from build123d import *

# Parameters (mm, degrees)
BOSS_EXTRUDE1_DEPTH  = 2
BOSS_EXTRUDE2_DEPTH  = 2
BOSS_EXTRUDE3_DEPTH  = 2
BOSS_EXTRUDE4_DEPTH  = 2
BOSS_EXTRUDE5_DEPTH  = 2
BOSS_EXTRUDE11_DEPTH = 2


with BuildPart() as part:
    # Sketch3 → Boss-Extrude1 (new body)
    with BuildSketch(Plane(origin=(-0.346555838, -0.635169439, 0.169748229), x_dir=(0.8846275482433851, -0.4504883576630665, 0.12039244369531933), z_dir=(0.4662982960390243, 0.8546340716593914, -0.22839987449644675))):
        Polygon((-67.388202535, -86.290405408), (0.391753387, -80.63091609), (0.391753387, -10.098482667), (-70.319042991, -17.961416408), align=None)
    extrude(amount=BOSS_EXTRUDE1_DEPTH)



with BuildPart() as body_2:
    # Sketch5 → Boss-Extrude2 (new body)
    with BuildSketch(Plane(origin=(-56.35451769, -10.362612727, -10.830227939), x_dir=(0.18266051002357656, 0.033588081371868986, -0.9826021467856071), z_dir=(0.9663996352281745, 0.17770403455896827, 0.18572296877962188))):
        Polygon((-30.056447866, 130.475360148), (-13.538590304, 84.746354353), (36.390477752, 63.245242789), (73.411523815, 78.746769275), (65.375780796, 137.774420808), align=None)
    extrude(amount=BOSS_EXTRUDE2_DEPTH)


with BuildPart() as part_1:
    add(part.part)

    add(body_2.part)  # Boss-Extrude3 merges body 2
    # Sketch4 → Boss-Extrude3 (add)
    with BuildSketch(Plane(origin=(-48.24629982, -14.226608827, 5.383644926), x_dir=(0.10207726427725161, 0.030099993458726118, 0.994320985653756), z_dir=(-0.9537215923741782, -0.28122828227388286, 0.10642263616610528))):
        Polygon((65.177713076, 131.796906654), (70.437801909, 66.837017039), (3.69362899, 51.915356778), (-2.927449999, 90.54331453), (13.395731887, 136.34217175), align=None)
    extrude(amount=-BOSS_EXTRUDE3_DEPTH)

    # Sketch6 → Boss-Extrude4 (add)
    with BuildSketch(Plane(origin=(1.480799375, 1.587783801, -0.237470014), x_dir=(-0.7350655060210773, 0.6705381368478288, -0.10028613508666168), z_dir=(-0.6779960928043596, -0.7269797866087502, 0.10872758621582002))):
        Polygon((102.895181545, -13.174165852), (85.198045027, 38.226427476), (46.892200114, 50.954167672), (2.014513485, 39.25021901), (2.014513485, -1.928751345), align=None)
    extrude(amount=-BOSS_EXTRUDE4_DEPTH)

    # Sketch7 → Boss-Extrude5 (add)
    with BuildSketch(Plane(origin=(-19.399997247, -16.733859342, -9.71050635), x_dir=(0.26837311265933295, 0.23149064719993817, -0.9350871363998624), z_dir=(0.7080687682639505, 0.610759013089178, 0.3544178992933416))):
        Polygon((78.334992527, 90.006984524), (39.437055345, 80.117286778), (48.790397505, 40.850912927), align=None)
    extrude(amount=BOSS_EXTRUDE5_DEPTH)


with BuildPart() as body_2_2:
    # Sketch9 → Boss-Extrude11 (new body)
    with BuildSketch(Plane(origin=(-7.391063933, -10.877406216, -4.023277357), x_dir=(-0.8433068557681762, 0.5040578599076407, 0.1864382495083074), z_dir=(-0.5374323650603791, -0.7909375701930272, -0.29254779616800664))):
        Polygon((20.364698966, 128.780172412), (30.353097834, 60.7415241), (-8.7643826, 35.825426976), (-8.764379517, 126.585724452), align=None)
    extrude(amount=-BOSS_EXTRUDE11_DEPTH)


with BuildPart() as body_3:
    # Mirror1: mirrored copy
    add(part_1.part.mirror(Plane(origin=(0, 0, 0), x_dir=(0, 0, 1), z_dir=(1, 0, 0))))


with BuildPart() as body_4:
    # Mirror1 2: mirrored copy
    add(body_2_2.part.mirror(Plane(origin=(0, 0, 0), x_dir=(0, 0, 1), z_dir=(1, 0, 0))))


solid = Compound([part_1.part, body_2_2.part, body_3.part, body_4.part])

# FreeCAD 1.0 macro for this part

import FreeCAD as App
import Part
import Sketcher
Q = App.Units.Quantity

doc = App.newDocument("Part")
body = doc.addObject("PartDesign::Body", "Body")

sketch1 = body.newObject("Sketcher::SketchObject", "Sketch")
sketch1.Placement = App.Placement(App.Vector(-0.346556, -0.635169, 0.169748), App.Rotation(App.Vector(0.884627548, -0.450488358, 0.120392444), App.Vector(0, -0.258187612, -0.966094797), App.Vector(0.466298296, 0.854634072, -0.228399874), "ZXY"))
sketch1.addGeometry(Part.LineSegment(App.Vector(-67, -86, 0), App.Vector(0, -81, 0)), False)
sketch1.addGeometry(Part.LineSegment(App.Vector(0, -81, 0), App.Vector(0, -10, 0)), False)
sketch1.addGeometry(Part.LineSegment(App.Vector(0, -10, 0), App.Vector(-70, -18, 0)), False)
sketch1.addGeometry(Part.LineSegment(App.Vector(-70, -18, 0), App.Vector(-67, -86, 0)), False)
sketch1.addConstraint(Sketcher.Constraint("Coincident", 0, 2, 1, 1))
sketch1.addConstraint(Sketcher.Constraint("Coincident", 1, 2, 2, 1))
sketch1.addConstraint(Sketcher.Constraint("Coincident", 2, 2, 3, 1))
sketch1.addConstraint(Sketcher.Constraint("Coincident", 3, 2, 0, 1))
sketch1.addConstraint(Sketcher.Constraint("Vertical", 1))
sketch1.addConstraint(Sketcher.Constraint("DistanceY", 0, 2, 2, 2, Q("62.6695 mm")))
sketch1.addConstraint(Sketcher.Constraint("DistanceY", 1, 1, 1, 2, Q("70.532433 mm")))
sketch1.addConstraint(Sketcher.Constraint("DistanceY", 3, 2, 0, 2, Q("5.659489 mm")))
sketch1.addConstraint(Sketcher.Constraint("DistanceX", 2, 2, 3, 2, Q("2.93084 mm")))
sketch1.addConstraint(Sketcher.Constraint("Distance", 0, Q("68.015823 mm")))
sketch1.addConstraint(Sketcher.Constraint("DistanceX", -1, 1, 0, 2, Q("0.391753 mm")))
sketch1.addConstraint(Sketcher.Constraint("DistanceY", 0, 2, -1, 1, Q("80.630916 mm")))
pad1 = body.newObject("PartDesign::Pad", "Pad")
pad1.Profile = sketch1
pad1.Length = 2
body2 = doc.addObject("PartDesign::Body", "Body001")

sketch2 = body2.newObject("Sketcher::SketchObject", "Sketch001")
sketch2.Placement = App.Placement(App.Vector(-56.354518, -10.362613, -10.830228), App.Rotation(App.Vector(0.18266051, 0.033588081, -0.982602147), App.Vector(-0.180850444, 0.983510608, 0), App.Vector(0.966399635, 0.177704035, 0.185722969), "ZXY"))
sketch2.addGeometry(Part.LineSegment(App.Vector(-30, 130, 0), App.Vector(-14, 85, 0)), False)
sketch2.addGeometry(Part.LineSegment(App.Vector(-14, 85, 0), App.Vector(36, 63, 0)), False)
sketch2.addGeometry(Part.LineSegment(App.Vector(36, 63, 0), App.Vector(73, 79, 0)), False)
sketch2.addGeometry(Part.LineSegment(App.Vector(73, 79, 0), App.Vector(65, 138, 0)), False)
sketch2.addGeometry(Part.LineSegment(App.Vector(65, 138, 0), App.Vector(-30, 130, 0)), False)
sketch2.addConstraint(Sketcher.Constraint("Coincident", 0, 2, 1, 1))
sketch2.addConstraint(Sketcher.Constraint("Coincident", 1, 2, 2, 1))
sketch2.addConstraint(Sketcher.Constraint("Coincident", 2, 2, 3, 1))
sketch2.addConstraint(Sketcher.Constraint("Coincident", 3, 2, 4, 1))
sketch2.addConstraint(Sketcher.Constraint("Coincident", 4, 2, 0, 1))
sketch2.addConstraint(Sketcher.Constraint("Distance", 1, Q("54.36184 mm")))
sketch2.addConstraint(Sketcher.Constraint("Distance", 2, Q("40.13546 mm")))
sketch2.addConstraint(Sketcher.Constraint("DistanceX", 0, 2, -1, 1, Q("13.53859 mm")))
sketch2.addConstraint(Sketcher.Constraint("DistanceY", -1, 1, 2, 2, Q("78.746769 mm")))
sketch2.addConstraint(Sketcher.Constraint("DistanceX", -1, 1, 3, 2, Q("65.375781 mm")))
sketch2.addConstraint(Sketcher.Constraint("DistanceY", -1, 1, 3, 2, Q("137.774421 mm")))
sketch2.addConstraint(Sketcher.Constraint("DistanceY", -1, 1, 4, 2, Q("130.47536 mm")))
sketch2.addConstraint(Sketcher.Constraint("DistanceX", 0, 2, 1, 2, Q("49.929068 mm")))
sketch2.addConstraint(Sketcher.Constraint("DistanceY", 1, 2, 3, 2, Q("74.529178 mm")))
sketch2.addConstraint(Sketcher.Constraint("DistanceX", 4, 2, 3, 2, Q("95.432229 mm")))
pad2 = body2.newObject("PartDesign::Pad", "Pad001")
pad2.Profile = sketch2
pad2.Length = 2
body.AllowCompound = True
doc.recompute()

boolean = body.newObject("PartDesign::Boolean", "Boolean")
boolean.Type = "Fuse"
boolean.addObjects([body2])

sketch3 = body.newObject("Sketcher::SketchObject", "Sketch002")
sketch3.Placement = App.Placement(App.Vector(-48.2463, -14.226609, 5.383645), App.Rotation(App.Vector(0.102077264, 0.030099993, 0.994320986), App.Vector(-0.282834503, 0.959168725, 0), App.Vector(-0.953721592, -0.281228282, 0.106422636), "ZXY"))
sketch3.addGeometry(Part.LineSegment(App.Vector(70, 67, 0), App.Vector(65, 132, 0)), False)
sketch3.addGeometry(Part.LineSegment(App.Vector(65, 132, 0), App.Vector(13, 136, 0)), False)
sketch3.addGeometry(Part.LineSegment(App.Vector(13, 136, 0), App.Vector(-3, 91, 0)), False)
sketch3.addGeometry(Part.LineSegment(App.Vector(-3, 91, 0), App.Vector(4, 52, 0)), False)
sketch3.addGeometry(Part.LineSegment(App.Vector(4, 52, 0), App.Vector(70, 67, 0)), False)
sketch3.addConstraint(Sketcher.Constraint("Coincident", 0, 2, 1, 1))
sketch3.addConstraint(Sketcher.Constraint("Coincident", 1, 2, 2, 1))
sketch3.addConstraint(Sketcher.Constraint("Coincident", 2, 2, 3, 1))
sketch3.addConstraint(Sketcher.Constraint("Coincident", 3, 2, 4, 1))
sketch3.addConstraint(Sketcher.Constraint("Coincident", 4, 2, 0, 1))
sketch3.addConstraint(Sketcher.Constraint("DistanceX", -1, 1, 4, 2, Q("70.437802 mm")))
sketch3.addConstraint(Sketcher.Constraint("DistanceX", -1, 1, 1, 2, Q("13.395732 mm")))
sketch3.addConstraint(Sketcher.Constraint("DistanceY", -1, 1, 1, 2, Q("136.342172 mm")))
sketch3.addConstraint(Sketcher.Constraint("DistanceX", 2, 2, -1, 1, Q("2.92745 mm")))
sketch3.addConstraint(Sketcher.Constraint("DistanceX", -1, 1, 3, 2, Q("3.693629 mm")))
sketch3.addConstraint(Sketcher.Constraint("DistanceX", 1, 2, 0, 2, Q("51.781981 mm")))
sketch3.addConstraint(Sketcher.Constraint("DistanceY", 3, 2, 0, 2, Q("79.88155 mm")))
sketch3.addConstraint(Sketcher.Constraint("DistanceY", 4, 2, 0, 2, Q("64.95989 mm")))
sketch3.addConstraint(Sketcher.Constraint("Distance", 1, Q("51.981083 mm")))
sketch3.addConstraint(Sketcher.Constraint("Distance", 2, Q("48.620794 mm")))
pad3 = body.newObject("PartDesign::Pad", "Pad002")
pad3.Profile = sketch3
pad3.Length = 2
pad3.Reversed = True

sketch4 = body.newObject("Sketcher::SketchObject", "Sketch003")
sketch4.Placement = App.Placement(App.Vector(1.480799, 1.587784, -0.23747), App.Rotation(App.Vector(-0.735065506, 0.670538137, -0.100286135), App.Vector(0, -0.147915506, -0.989000002), App.Vector(-0.677996093, -0.726979787, 0.108727586), "ZXY"))
sketch4.addGeometry(Part.LineSegment(App.Vector(103, -13, 0), App.Vector(85, 38, 0)), False)
sketch4.addGeometry(Part.LineSegment(App.Vector(85, 38, 0), App.Vector(47, 51, 0)), False)
sketch4.addGeometry(Part.LineSegment(App.Vector(47, 51, 0), App.Vector(2, 39, 0)), False)
sketch4.addGeometry(Part.LineSegment(App.Vector(2, 39, 0), App.Vector(2, -2, 0)), False)
sketch4.addGeometry(Part.LineSegment(App.Vector(2, -2, 0), App.Vector(103, -13, 0)), False)
sketch4.addConstraint(Sketcher.Constraint("Coincident", 0, 2, 1, 1))
sketch4.addConstraint(Sketcher.Constraint("Coincident", 1, 2, 2, 1))
sketch4.addConstraint(Sketcher.Constraint("Coincident", 2, 2, 3, 1))
sketch4.addConstraint(Sketcher.Constraint("Coincident", 3, 2, 4, 1))
sketch4.addConstraint(Sketcher.Constraint("Coincident", 4, 2, 0, 1))
sketch4.addConstraint(Sketcher.Constraint("Vertical", 3))
sketch4.addConstraint(Sketcher.Constraint("Distance", 1, Q("40.364999 mm")))
sketch4.addConstraint(Sketcher.Constraint("DistanceY", 3, 2, 3, 1, Q("41.17897 mm")))
sketch4.addConstraint(Sketcher.Constraint("DistanceX", -1, 1, 1, 2, Q("46.8922 mm")))
sketch4.addConstraint(Sketcher.Constraint("Distance", 0, Q("54.36184 mm")))
sketch4.addConstraint(Sketcher.Constraint("Distance", 4, Q("101.50551 mm")))
sketch4.addConstraint(Sketcher.Constraint("DistanceY", -1, 1, 2, 2, Q("39.250219 mm")))
sketch4.addConstraint(Sketcher.Constraint("DistanceX", -1, 1, 4, 2, Q("102.895182 mm")))
sketch4.addConstraint(Sketcher.Constraint("DistanceY", 0, 2, 1, 2, Q("12.72774 mm")))
sketch4.addConstraint(Sketcher.Constraint("DistanceY", 2, 2, 1, 2, Q("11.703949 mm")))
pad4 = body.newObject("PartDesign::Pad", "Pad003")
pad4.Profile = sketch4
pad4.Length = 2
pad4.Reversed = True

sketch5 = body.newObject("Sketcher::SketchObject", "Sketch004")
sketch5.Placement = App.Placement(App.Vector(-19.399997, -16.733859, -9.710506), App.Rotation(App.Vector(0.268373113, 0.231490647, -0.935087136), App.Vector(-0.653157325, 0.757222231, 0), App.Vector(0.708068768, 0.610759013, 0.354417899), "ZXY"))
sketch5.addGeometry(Part.LineSegment(App.Vector(78, 90, 0), App.Vector(39, 80, 0)), False)
sketch5.addGeometry(Part.LineSegment(App.Vector(39, 80, 0), App.Vector(49, 41, 0)), False)
sketch5.addGeometry(Part.LineSegment(App.Vector(49, 41, 0), App.Vector(78, 90, 0)), False)
sketch5.addConstraint(Sketcher.Constraint("Coincident", 0, 2, 1, 1))
sketch5.addConstraint(Sketcher.Constraint("Coincident", 1, 2, 2, 1))
sketch5.addConstraint(Sketcher.Constraint("Coincident", 2, 2, 0, 1))
sketch5.addConstraint(Sketcher.Constraint("Distance", 1, Q("40.364999 mm")))
sketch5.addConstraint(Sketcher.Constraint("Distance", 2, Q("57.351569 mm")))
sketch5.addConstraint(Sketcher.Constraint("DistanceY", 1, 2, 2, 2, Q("49.156072 mm")))
sketch5.addConstraint(Sketcher.Constraint("Distance", 0, Q("40.135466 mm")))
sketch5.addConstraint(Sketcher.Constraint("DistanceX", -1, 1, 0, 2, Q("39.437055 mm")))
sketch5.addConstraint(Sketcher.Constraint("DistanceY", -1, 1, 0, 2, Q("80.117287 mm")))
pad5 = body.newObject("PartDesign::Pad", "Pad004")
pad5.Profile = sketch5
pad5.Length = 2
body3 = doc.addObject("PartDesign::Body", "Body002")

sketch6 = body3.newObject("Sketcher::SketchObject", "Sketch005")
sketch6.Placement = App.Placement(App.Vector(-7.391064, -10.877406, -4.023277), App.Rotation(App.Vector(-0.843306856, 0.50405786, 0.18643825), App.Vector(0, 0.346905512, -0.937900083), App.Vector(-0.537432365, -0.79093757, -0.292547796), "ZXY"))
sketch6.addGeometry(Part.LineSegment(App.Vector(30, 61, 0), App.Vector(20, 129, 0)), False)
sketch6.addGeometry(Part.LineSegment(App.Vector(20, 129, 0), App.Vector(-9, 127, 0)), False)
sketch6.addGeometry(Part.LineSegment(App.Vector(-9, 127, 0), App.Vector(-9, 36, 0)), False)
sketch6.addGeometry(Part.LineSegment(App.Vector(-9, 36, 0), App.Vector(30, 61, 0)), False)
sketch6.addConstraint(Sketcher.Constraint("Coincident", 0, 2, 1, 1))
sketch6.addConstraint(Sketcher.Constraint("Coincident", 1, 2, 2, 1))
sketch6.addConstraint(Sketcher.Constraint("Coincident", 2, 2, 3, 1))
sketch6.addConstraint(Sketcher.Constraint("Coincident", 3, 2, 0, 1))
sketch6.addConstraint(Sketcher.Constraint("Angle", 2, Q("-90.000002 deg")))
sketch6.addConstraint(Sketcher.Constraint("DistanceX", -1, 1, 0, 2, Q("20.364699 mm")))
sketch6.addConstraint(Sketcher.Constraint("DistanceX", 0, 2, 3, 2, Q("9.988399 mm")))
sketch6.addConstraint(Sketcher.Constraint("DistanceY", 3, 2, 1, 2, Q("65.8442 mm")))
sketch6.addConstraint(Sketcher.Constraint("Distance", 1, Q("29.211621 mm")))
sketch6.addConstraint(Sketcher.Constraint("DistanceX", 1, 2, -1, 1, Q("8.76438 mm")))
sketch6.addConstraint(Sketcher.Constraint("Distance", 2, Q("90.760297 mm")))
sketch6.addConstraint(Sketcher.Constraint("DistanceY", -1, 1, 0, 2, Q("128.780172 mm")))
pad6 = body3.newObject("PartDesign::Pad", "Pad005")
pad6.Profile = sketch6
pad6.Length = 2
pad6.Reversed = True
body4 = doc.addObject("PartDesign::Body", "Body003")
doc.recompute()

mirroring = doc.addObject("Part::Mirroring", "Mirroring")
mirroring.Source = body
mirroring.Base = App.Vector(0, 0, 0)
mirroring.Normal = App.Vector(1, 0, 0)
body4.BaseFeature = mirroring
doc.recompute()
body5 = doc.addObject("PartDesign::Body", "Body004")
doc.recompute()

mirroring2 = doc.addObject("Part::Mirroring", "Mirroring001")
mirroring2.Source = body3
mirroring2.Base = App.Vector(0, 0, 0)
mirroring2.Normal = App.Vector(1, 0, 0)
body5.BaseFeature = mirroring2
doc.recompute()
mirroring.Visibility = False
mirroring2.Visibility = False

doc.recompute()
